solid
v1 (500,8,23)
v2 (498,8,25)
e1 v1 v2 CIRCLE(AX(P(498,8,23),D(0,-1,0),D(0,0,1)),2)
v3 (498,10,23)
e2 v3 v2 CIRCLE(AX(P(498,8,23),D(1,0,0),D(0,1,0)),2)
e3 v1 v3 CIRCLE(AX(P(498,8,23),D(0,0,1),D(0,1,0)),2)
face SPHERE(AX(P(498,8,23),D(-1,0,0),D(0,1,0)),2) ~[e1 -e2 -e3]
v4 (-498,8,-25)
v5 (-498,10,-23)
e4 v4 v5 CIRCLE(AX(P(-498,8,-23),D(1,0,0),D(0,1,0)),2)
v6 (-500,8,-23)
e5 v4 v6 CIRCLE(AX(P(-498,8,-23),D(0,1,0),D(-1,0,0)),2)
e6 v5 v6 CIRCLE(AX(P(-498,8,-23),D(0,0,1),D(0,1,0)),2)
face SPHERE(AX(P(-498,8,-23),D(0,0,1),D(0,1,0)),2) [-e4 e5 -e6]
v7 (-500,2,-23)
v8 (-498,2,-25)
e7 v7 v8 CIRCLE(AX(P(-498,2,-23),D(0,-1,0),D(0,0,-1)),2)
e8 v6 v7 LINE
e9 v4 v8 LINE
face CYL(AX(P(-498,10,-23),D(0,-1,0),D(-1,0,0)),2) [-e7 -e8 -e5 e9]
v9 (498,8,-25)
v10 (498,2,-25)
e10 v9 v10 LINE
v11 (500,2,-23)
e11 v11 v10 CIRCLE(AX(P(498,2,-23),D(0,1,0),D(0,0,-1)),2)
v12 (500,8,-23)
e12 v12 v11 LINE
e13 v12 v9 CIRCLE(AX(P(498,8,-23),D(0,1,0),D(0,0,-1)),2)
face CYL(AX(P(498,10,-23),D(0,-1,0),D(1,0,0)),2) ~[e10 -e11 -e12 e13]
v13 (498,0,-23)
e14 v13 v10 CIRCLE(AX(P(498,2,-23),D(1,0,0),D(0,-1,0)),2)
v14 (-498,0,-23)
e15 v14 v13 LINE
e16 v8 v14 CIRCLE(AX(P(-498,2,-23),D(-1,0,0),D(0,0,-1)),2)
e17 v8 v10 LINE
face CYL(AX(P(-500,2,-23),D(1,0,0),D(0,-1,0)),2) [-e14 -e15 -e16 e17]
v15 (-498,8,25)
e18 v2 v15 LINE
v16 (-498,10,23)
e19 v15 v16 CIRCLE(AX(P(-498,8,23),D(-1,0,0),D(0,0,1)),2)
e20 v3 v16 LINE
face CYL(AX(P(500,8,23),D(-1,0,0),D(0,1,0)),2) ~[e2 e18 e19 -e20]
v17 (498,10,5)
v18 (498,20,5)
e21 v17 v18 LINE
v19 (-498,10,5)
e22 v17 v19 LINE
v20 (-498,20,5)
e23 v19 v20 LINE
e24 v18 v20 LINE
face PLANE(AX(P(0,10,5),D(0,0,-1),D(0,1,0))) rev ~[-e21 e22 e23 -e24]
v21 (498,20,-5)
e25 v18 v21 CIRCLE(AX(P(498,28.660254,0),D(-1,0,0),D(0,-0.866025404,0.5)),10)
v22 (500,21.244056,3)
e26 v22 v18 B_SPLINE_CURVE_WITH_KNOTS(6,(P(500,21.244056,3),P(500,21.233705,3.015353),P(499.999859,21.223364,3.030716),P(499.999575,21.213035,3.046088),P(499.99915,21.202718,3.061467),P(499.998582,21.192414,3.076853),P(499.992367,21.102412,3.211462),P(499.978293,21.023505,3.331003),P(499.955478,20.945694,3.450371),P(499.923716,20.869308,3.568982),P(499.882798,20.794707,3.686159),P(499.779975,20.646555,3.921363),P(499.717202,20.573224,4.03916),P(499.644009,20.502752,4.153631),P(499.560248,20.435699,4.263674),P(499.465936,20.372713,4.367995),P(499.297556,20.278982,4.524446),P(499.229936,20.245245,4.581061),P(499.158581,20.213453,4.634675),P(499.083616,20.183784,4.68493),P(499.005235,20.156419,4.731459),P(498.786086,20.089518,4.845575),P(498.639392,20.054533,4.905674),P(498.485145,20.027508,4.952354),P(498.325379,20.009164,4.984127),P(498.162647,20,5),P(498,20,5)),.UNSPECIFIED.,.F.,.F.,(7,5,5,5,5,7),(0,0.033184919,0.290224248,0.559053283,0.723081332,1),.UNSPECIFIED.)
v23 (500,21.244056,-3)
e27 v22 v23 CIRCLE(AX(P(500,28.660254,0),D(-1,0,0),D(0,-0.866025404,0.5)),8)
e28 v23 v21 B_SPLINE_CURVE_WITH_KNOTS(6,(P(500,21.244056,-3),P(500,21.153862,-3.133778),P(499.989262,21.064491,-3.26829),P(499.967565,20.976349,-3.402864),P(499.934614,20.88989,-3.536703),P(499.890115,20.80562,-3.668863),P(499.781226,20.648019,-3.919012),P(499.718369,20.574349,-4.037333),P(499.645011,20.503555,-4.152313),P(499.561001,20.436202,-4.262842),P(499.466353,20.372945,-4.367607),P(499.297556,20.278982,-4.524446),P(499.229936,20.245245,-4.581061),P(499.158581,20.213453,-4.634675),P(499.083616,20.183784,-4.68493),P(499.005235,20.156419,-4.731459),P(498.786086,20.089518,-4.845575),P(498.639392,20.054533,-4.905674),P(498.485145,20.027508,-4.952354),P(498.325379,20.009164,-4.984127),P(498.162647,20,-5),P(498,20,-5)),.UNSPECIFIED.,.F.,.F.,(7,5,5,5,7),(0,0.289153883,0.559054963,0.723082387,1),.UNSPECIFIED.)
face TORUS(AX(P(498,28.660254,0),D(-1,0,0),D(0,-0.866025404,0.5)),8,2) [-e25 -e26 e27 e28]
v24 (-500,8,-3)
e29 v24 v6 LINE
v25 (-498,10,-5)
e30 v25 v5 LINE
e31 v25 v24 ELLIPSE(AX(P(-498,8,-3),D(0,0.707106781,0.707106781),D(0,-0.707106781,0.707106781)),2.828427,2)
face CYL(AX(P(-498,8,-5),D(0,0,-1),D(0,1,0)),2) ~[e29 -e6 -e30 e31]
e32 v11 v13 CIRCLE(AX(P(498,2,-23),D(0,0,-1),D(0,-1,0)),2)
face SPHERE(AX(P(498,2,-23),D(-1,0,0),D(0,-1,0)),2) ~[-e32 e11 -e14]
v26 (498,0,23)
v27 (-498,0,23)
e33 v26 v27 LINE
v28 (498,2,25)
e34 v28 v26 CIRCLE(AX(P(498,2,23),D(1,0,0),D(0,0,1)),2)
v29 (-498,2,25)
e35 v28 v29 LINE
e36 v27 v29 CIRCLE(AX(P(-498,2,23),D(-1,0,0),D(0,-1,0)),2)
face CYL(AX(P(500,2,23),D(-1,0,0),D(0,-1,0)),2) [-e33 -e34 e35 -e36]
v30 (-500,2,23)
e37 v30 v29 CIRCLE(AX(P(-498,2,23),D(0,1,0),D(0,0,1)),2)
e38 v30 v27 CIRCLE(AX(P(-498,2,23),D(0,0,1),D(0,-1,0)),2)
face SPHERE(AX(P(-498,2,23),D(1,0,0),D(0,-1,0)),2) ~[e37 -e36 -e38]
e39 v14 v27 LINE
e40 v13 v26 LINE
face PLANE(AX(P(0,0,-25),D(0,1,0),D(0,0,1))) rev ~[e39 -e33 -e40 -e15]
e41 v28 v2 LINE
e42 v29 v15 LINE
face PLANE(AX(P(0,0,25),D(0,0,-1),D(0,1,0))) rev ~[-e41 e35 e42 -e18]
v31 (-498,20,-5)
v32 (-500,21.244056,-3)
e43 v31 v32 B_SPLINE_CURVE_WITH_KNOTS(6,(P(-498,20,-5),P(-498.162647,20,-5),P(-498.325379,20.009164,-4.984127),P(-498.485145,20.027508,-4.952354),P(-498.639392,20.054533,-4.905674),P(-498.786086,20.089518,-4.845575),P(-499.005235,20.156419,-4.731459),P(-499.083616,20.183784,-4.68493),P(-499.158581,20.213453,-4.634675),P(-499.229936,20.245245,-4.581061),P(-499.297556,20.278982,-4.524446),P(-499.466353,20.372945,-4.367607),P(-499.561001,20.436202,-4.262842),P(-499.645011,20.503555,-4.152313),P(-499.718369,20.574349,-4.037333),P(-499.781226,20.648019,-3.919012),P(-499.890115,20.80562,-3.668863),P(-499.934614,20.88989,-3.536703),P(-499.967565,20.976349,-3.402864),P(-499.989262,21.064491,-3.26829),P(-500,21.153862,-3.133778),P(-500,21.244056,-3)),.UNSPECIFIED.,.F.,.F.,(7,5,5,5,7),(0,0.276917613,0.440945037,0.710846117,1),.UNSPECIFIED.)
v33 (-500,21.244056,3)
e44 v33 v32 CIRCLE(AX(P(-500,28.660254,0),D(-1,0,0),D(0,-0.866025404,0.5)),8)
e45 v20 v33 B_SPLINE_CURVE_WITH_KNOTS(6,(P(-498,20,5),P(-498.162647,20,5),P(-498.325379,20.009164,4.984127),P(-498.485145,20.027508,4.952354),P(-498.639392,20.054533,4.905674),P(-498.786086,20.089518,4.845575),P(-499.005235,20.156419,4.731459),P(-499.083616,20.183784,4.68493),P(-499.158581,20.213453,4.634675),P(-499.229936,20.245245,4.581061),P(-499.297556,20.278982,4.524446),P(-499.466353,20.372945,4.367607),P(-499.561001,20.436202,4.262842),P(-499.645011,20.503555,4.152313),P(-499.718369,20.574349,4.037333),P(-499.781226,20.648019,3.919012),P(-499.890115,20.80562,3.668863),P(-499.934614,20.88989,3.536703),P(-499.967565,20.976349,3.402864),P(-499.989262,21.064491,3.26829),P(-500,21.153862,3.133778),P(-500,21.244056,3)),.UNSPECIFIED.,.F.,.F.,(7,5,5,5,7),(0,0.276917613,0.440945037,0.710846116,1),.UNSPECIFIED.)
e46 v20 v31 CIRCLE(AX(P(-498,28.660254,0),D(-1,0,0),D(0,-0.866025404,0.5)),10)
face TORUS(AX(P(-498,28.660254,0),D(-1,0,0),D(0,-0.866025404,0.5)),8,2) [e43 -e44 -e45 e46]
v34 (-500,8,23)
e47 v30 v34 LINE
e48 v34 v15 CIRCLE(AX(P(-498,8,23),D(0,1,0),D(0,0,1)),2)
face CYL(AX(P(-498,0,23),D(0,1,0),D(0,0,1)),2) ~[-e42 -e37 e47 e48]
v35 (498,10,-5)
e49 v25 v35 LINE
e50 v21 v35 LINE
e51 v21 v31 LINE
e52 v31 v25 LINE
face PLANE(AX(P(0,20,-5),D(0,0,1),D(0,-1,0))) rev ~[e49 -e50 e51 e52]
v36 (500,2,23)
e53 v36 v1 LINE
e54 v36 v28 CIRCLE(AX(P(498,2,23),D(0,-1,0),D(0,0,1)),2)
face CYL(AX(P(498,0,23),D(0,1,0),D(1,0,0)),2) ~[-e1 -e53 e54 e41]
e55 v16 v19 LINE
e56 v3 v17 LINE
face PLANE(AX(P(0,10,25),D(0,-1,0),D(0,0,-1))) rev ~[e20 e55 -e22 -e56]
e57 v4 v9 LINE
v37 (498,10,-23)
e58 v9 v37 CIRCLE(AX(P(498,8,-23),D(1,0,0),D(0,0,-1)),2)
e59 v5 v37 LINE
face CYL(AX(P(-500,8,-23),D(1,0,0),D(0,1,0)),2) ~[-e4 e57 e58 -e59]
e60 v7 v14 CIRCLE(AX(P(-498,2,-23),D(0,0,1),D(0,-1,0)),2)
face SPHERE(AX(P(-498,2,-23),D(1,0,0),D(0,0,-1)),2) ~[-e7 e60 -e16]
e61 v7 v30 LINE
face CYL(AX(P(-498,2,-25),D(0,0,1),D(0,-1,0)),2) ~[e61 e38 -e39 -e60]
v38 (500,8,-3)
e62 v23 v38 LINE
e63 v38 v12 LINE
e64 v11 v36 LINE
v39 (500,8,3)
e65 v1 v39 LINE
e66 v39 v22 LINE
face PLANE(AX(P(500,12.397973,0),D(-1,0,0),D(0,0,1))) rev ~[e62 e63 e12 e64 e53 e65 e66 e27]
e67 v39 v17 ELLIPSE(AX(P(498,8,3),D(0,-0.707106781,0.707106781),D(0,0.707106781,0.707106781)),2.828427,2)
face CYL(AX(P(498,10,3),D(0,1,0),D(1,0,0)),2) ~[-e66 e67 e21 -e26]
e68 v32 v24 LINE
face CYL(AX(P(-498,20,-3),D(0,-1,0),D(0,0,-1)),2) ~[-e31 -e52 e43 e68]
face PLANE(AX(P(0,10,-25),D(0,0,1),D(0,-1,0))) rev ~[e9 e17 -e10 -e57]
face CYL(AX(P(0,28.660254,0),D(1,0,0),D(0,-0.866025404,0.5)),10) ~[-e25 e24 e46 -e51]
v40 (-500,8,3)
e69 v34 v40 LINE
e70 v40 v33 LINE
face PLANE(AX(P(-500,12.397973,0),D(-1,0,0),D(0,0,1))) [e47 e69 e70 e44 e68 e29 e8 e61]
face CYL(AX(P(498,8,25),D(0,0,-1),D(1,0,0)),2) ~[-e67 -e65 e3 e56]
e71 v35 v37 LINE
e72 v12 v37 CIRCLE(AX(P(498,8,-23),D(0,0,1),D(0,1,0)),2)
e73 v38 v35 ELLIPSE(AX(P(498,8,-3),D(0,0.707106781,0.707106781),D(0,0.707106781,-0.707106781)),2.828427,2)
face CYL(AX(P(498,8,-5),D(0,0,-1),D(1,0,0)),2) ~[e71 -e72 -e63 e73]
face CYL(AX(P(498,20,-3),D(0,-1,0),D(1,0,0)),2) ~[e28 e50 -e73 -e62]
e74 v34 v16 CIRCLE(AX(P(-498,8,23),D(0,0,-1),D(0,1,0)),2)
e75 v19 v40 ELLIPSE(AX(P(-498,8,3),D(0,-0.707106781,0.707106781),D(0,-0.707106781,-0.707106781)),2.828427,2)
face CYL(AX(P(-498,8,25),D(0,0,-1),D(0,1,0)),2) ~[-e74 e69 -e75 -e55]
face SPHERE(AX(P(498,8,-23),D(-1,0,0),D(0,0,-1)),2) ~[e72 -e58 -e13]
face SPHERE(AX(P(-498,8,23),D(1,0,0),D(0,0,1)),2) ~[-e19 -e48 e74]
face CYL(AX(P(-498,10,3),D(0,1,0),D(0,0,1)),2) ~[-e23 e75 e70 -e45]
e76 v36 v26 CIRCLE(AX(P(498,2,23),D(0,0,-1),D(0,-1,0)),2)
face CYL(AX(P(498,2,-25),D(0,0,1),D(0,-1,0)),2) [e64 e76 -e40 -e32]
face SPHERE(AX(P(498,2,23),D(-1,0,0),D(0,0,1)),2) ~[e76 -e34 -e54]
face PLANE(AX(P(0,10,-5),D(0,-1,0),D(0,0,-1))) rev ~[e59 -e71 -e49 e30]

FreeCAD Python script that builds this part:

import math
import FreeCAD as App
import Part
import Sketcher

V = App.Vector


def edges_at(feature, points):
    """Names of the edges that pass closest to the given points."""
    edges = feature.Shape.Edges
    near = lambda p: min(range(len(edges)), key=lambda i: edges[i].distToShape(Part.Vertex(*p))[0])
    return sorted({f"Edge{near(p) + 1}" for p in points})

doc = App.newDocument("Part")
params = doc.addObject("Spreadsheet::Sheet", "Params")
for row, (alias, value) in enumerate([
    ("sketch1_radius", "10 mm"),
    ("sketch1_width", "10 mm"),
    ("sketch1_height", "50 mm"),
    ("sketch1_height2", "20 mm"),
    ("pad1_length", "1000 mm"),
    ("fillet_radius", "2 mm"),
], start=1):
    params.set(f"A{row}", alias)
    params.set(f"B{row}", "=" + value)
    params.setAlias(f"B{row}", alias)

body = doc.addObject("PartDesign::Body", "Body")

# Sketch on YZ plane
sketch1 = body.newObject("Sketcher::SketchObject", "Sketch")
sketch1.AttachmentSupport = (doc.getObject("YZ_Plane"), [""])
sketch1.MapMode = "FlatFace"
sketch1.addGeometry(Part.LineSegment(V(0, 25, 0), V(0, -25, 0)), False)
sketch1.addGeometry(Part.LineSegment(V(0, -25, 0), V(10, -25, 0)), False)
sketch1.addGeometry(Part.LineSegment(V(10, -25, 0), V(10, -5, 0)), False)
sketch1.addGeometry(Part.LineSegment(V(10, -5, 0), V(20, -5, 0)), False)
sketch1.addGeometry(Part.ArcOfCircle(Part.Circle(V(29, 0, 0), V(0, 0, 1), 10), math.radians(-150), math.radians(150)), False)
sketch1.addGeometry(Part.LineSegment(V(20, 5, 0), V(10, 5, 0)), False)
sketch1.addGeometry(Part.LineSegment(V(10, 5, 0), V(10, 25, 0)), False)
sketch1.addGeometry(Part.LineSegment(V(10, 25, 0), V(0, 25, 0)), False)
sketch1.addConstraint(Sketcher.Constraint("Coincident", 0, 2, 1, 1))
sketch1.addConstraint(Sketcher.Constraint("Coincident", 1, 2, 2, 1))
sketch1.addConstraint(Sketcher.Constraint("Coincident", 2, 2, 3, 1))
sketch1.addConstraint(Sketcher.Constraint("Coincident", 3, 2, 4, 1))
sketch1.addConstraint(Sketcher.Constraint("Coincident", 4, 2, 5, 1))
sketch1.addConstraint(Sketcher.Constraint("Coincident", 5, 2, 6, 1))
sketch1.addConstraint(Sketcher.Constraint("Coincident", 6, 2, 7, 1))
sketch1.addConstraint(Sketcher.Constraint("Coincident", 7, 2, 0, 1))
sketch1.addConstraint(Sketcher.Constraint("Vertical", 0))
sketch1.addConstraint(Sketcher.Constraint("Horizontal", 1))
sketch1.addConstraint(Sketcher.Constraint("Vertical", 2))
sketch1.addConstraint(Sketcher.Constraint("Horizontal", 3))
sketch1.addConstraint(Sketcher.Constraint("Horizontal", 5))
sketch1.addConstraint(Sketcher.Constraint("Vertical", 6))
sketch1.addConstraint(Sketcher.Constraint("Horizontal", 7))
sketch1.addConstraint(Sketcher.Constraint("Symmetric", 0, 2, 7, 2, -1, 1))
sketch1.addConstraint(Sketcher.Constraint("Symmetric", 3, 2, 4, 2, -1))
sketch1.addConstraint(Sketcher.Constraint("Vertical", 2, 2, 5, 2))
sketch1.addConstraint(Sketcher.Constraint("Equal", 1, 3))
sketch1.addConstraint(Sketcher.Constraint("Radius", 4, 10.0))
sketch1.addConstraint(Sketcher.Constraint("DistanceX", 1, 1, 1, 2, 10.0))
sketch1.addConstraint(Sketcher.Constraint("DistanceY", 0, 2, 0, 1, 50.0))
sketch1.addConstraint(Sketcher.Constraint("DistanceY", 2, 1, 2, 2, 20.0))
sketch1.setExpression("Constraints[19]", "Params.sketch1_radius")
sketch1.setExpression("Constraints[20]", "Params.sketch1_width")
sketch1.setExpression("Constraints[21]", "Params.sketch1_height")
sketch1.setExpression("Constraints[22]", "Params.sketch1_height2")
pad1 = body.newObject("PartDesign::Pad", "Pad")
pad1.Profile = sketch1
pad1.setExpression("Length", "Params.pad1_length")
pad1.Midplane = True
doc.recompute()

fillet = body.newObject("PartDesign::Fillet", "Fillet")
fillet.Base = (pad1, edges_at(pad1, [
    (500, 38.66, 0),
    (-500, 15, -5),
    (-500, 10, -15),
    (500, 15, 5),
    (0, 10, -25),
    (0, 0, -25),
    (0, 0, 25),
    (0, 10, 25),
    (500, 10, 15),
    (500, 5, 25),
    (500, 0, 0),
    (500, 5, -25),
    (500, 10, -15),
    (500, 15, -5),
    (-500, 5, -25),
    (-500, 0, 0),
    (-500, 5, 25),
    (-500, 10, 15),
    (-500, 15, 5),
    (-500, 38.66, 0),
]))
fillet.setExpression("Radius", "Params.fillet_radius")

doc.recompute()
